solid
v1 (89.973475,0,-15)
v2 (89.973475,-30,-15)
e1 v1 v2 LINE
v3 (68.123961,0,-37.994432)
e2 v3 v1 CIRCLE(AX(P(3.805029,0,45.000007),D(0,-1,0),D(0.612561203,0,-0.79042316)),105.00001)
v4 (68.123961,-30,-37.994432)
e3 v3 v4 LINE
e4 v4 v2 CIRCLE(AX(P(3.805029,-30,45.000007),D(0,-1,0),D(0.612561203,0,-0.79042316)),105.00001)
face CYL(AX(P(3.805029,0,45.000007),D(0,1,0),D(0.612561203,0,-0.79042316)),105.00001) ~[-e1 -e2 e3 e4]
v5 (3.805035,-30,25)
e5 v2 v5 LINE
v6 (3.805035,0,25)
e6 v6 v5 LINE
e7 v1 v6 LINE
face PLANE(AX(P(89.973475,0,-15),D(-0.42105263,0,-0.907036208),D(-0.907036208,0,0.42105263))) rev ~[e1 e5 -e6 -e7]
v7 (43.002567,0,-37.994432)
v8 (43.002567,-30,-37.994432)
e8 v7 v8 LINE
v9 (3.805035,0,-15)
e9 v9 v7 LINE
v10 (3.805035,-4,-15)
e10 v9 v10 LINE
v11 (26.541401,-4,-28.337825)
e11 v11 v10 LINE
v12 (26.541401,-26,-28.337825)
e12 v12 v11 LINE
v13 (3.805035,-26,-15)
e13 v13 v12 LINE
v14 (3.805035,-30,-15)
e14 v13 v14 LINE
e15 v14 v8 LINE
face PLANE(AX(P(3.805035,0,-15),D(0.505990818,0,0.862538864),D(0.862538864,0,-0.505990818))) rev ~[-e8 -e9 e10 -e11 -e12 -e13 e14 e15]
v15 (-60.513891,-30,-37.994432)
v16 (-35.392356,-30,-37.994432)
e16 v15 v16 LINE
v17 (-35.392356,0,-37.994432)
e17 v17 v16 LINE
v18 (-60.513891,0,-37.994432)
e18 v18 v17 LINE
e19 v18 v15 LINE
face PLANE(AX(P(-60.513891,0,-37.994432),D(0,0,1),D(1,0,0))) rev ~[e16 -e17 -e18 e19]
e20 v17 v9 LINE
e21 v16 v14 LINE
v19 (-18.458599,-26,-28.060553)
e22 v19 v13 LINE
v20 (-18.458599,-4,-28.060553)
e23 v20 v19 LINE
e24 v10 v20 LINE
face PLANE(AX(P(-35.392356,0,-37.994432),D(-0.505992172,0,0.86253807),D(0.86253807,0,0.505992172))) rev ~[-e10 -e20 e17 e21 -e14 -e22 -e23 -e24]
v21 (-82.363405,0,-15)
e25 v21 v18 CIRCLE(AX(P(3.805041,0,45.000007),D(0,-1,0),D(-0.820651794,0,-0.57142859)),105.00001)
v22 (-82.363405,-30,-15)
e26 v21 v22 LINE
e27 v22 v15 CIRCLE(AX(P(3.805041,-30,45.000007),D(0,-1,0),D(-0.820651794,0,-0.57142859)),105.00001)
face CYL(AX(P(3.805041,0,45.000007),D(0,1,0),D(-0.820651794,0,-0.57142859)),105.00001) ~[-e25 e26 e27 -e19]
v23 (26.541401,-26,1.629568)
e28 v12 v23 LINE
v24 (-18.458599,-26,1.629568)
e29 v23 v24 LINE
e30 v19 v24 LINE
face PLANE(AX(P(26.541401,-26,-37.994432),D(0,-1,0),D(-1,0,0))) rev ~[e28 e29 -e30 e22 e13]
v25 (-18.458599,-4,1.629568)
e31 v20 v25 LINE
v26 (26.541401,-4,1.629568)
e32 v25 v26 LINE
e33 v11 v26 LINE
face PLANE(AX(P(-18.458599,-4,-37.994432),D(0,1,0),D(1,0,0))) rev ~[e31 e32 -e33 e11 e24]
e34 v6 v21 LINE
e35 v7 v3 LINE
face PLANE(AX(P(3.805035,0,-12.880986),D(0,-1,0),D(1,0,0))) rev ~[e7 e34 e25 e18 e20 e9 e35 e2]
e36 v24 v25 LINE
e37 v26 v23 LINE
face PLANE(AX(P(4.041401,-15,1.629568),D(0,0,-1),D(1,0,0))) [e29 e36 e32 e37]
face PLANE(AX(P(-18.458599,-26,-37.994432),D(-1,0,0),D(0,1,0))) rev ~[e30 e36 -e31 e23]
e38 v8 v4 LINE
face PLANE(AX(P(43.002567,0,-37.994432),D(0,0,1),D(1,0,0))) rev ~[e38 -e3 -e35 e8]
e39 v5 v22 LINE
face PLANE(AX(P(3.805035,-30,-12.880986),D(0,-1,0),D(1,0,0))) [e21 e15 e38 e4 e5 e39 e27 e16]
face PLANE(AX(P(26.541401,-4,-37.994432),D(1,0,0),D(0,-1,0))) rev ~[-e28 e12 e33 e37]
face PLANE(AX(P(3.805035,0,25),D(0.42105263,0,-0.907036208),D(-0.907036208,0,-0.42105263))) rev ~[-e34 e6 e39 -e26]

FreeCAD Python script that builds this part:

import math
import FreeCAD as App
import Part
import Sketcher


def add_polygon(sketch, points):
    """Adds a closed chain of lines whose ends are joined by coincident constraints."""
    first, n = sketch.GeometryCount, len(points)
    for a, b in zip(points, points[1:] + points[:1]):
        sketch.addGeometry(Part.LineSegment(App.Vector(*a, 0), App.Vector(*b, 0)), False)
    for i in range(n):
        sketch.addConstraint(Sketcher.Constraint("Coincident", first + i, 2, first + (i + 1) % n, 1))

doc = App.newDocument("Part")
params = doc.addObject("Spreadsheet::Sheet", "Params")
for row, (alias, value) in enumerate([
    ("sketch1_length", "95 mm"),
    ("pad1_length", "30 mm"),
    ("sketch2_width", "45 mm"),
    ("sketch2_height", "22 mm"),
    ("pocket1_length", "39.624 mm"),
], start=1):
    params.set(f"A{row}", alias)
    params.set(f"B{row}", "=" + value)
    params.setAlias(f"B{row}", alias)

body = doc.addObject("PartDesign::Body", "Body")

sketch1 = body.newObject("Sketcher::SketchObject", "Sketch")
sketch1.AttachmentSupport = (doc.getObject("XZ_Plane"), [""])
sketch1.MapMode = "FlatFace"
sketch1.addGeometry([
    Part.ArcOfCircle(Part.Circle(App.Vector(4, 45, 0), App.Vector(0, 0, 1), 105), math.radians(-52.23), math.radians(-34.85)),
    Part.LineSegment(App.Vector(90, -15, 0), App.Vector(4, 25, 0)),
    Part.LineSegment(App.Vector(4, 25, 0), App.Vector(-82, -15, 0)),
    Part.ArcOfCircle(Part.Circle(App.Vector(4, 45, 0), App.Vector(0, 0, 1), 105), math.radians(-145.15), math.radians(-127.77)),
    Part.LineSegment(App.Vector(-61, -38, 0), App.Vector(-35, -38, 0)),
    Part.LineSegment(App.Vector(-35, -38, 0), App.Vector(4, -15, 0)),
    Part.LineSegment(App.Vector(4, -15, 0), App.Vector(43, -38, 0)),
    Part.LineSegment(App.Vector(43, -38, 0), App.Vector(68, -38, 0)),
], False)
sketch1.addConstraint([
    Sketcher.Constraint("Coincident", 0, 2, 1, 1),
    Sketcher.Constraint("Coincident", 1, 2, 2, 1),
    Sketcher.Constraint("Coincident", 2, 2, 3, 1),
    Sketcher.Constraint("Coincident", 3, 2, 4, 1),
    Sketcher.Constraint("Coincident", 4, 2, 5, 1),
    Sketcher.Constraint("Coincident", 5, 2, 6, 1),
    Sketcher.Constraint("Coincident", 6, 2, 7, 1),
    Sketcher.Constraint("Coincident", 7, 2, 0, 1),
    Sketcher.Constraint("Horizontal", 4),
    Sketcher.Constraint("Horizontal", 7),
    Sketcher.Constraint("Equal", 0, 3),
    Sketcher.Constraint("Horizontal", 0, 3, 3, 3),
    Sketcher.Constraint("Horizontal", 0, 2, 2, 2),
    Sketcher.Constraint("Horizontal", 2, 2, 5, 2),
    Sketcher.Constraint("Horizontal", 4, 2, 6, 2),
    Sketcher.Constraint("Vertical", 1, 2, 5, 2),
    Sketcher.Constraint("Equal", 1, 2),
    Sketcher.Constraint("Distance", 1, 95.0),
    Sketcher.Constraint("DistanceY", 0, 2, -1, 1, 15.0),
    Sketcher.Constraint("DistanceY", -1, 1, 1, 2, 25.0),
    Sketcher.Constraint("Radius", 0, 105.00001),
    Sketcher.Constraint("DistanceX", 4, 1, 4, 2, 25.121535),
    Sketcher.Constraint("DistanceX", 7, 1, 7, 2, 25.121394),
    Sketcher.Constraint("DistanceX", -1, 1, 0, 3, 3.805029),
    Sketcher.Constraint("DistanceX", -1, 1, 3, 3, 3.805041),
    Sketcher.Constraint("DistanceX", 3, 2, -1, 1, 60.513891),
])
sketch1.setExpression("Constraints[17]", "Params.sketch1_length")
pad1 = body.newObject("PartDesign::Pad", "Pad")
pad1.Profile = sketch1
pad1.setExpression("Length", "Params.pad1_length")

sketch2 = body.newObject("Sketcher::SketchObject", "Sketch001")
sketch2.AttachmentSupport = (doc.getObject("XY_Plane"), [""])
sketch2.MapMode = "FlatFace"
sketch2.AttachmentOffset = App.Placement(App.Vector(0, 0, -37.994432), App.Rotation())
add_polygon(sketch2, [(27, -4), (27, -26), (-18, -26), (-18, -4)])
sketch2.addConstraint([
    Sketcher.Constraint("Vertical", 0),
    Sketcher.Constraint("Horizontal", 1),
    Sketcher.Constraint("Vertical", 2),
    Sketcher.Constraint("Horizontal", 3),
    Sketcher.Constraint("DistanceX", 1, 2, 1, 1, 45.0),
    Sketcher.Constraint("DistanceY", 0, 2, 0, 1, 22.0),
    Sketcher.Constraint("DistanceY", 0, 2, -1, 1, 26.0),
    Sketcher.Constraint("DistanceX", -1, 1, 0, 2, 26.541401),
])
sketch2.setExpression("Constraints[8]", "Params.sketch2_width")
sketch2.setExpression("Constraints[9]", "Params.sketch2_height")
pocket1 = body.newObject("PartDesign::Pocket", "Pocket")
pocket1.Profile = sketch2
pocket1.setExpression("Length", "Params.pocket1_length")
pocket1.Reversed = True

doc.recompute()
